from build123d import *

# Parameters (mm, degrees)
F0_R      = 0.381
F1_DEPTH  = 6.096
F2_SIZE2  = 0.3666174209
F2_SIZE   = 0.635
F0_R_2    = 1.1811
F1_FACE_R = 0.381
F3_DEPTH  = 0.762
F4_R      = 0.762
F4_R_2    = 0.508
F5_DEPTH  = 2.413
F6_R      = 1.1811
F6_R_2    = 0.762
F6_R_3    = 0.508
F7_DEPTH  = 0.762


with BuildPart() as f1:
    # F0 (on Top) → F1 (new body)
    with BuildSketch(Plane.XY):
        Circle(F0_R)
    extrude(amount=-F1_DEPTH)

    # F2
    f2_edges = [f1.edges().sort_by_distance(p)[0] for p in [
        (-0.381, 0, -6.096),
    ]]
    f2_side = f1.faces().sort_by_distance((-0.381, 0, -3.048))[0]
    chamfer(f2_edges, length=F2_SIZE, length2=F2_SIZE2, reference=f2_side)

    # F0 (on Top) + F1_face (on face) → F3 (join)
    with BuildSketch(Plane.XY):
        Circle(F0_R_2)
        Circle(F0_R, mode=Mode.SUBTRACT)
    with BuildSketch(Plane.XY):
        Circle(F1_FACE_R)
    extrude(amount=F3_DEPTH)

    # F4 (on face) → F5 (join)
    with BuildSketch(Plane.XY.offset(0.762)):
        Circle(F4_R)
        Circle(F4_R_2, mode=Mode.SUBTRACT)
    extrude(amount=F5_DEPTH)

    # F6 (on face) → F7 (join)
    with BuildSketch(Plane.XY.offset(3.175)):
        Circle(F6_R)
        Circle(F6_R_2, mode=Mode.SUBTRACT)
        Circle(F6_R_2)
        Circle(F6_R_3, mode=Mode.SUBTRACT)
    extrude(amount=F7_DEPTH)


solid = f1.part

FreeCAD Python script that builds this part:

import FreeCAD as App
import Part
import Sketcher

V = App.Vector
Q = App.Units.Quantity


def edges_at(feature, points):
    """Names of the edges that pass closest to the given points."""
    edges = feature.Shape.Edges
    near = lambda p: min(range(len(edges)), key=lambda i: edges[i].distToShape(Part.Vertex(*p))[0])
    return sorted({f"Edge{near(p) + 1}" for p in points})

doc = App.newDocument("Part")
body = doc.addObject("PartDesign::Body", "Body")

# Sketch on XY plane
sketch1 = body.newObject("Sketcher::SketchObject", "Sketch")
sketch1.AttachmentSupport = (doc.getObject("XY_Plane"), [""])
sketch1.MapMode = "FlatFace"
sketch1.addGeometry(Part.Circle(V(0, 0, 0), V(0, 0, 1), 0.381), False)
sketch1.addConstraint([
    Sketcher.Constraint("Coincident", 0, 3, -1, 1),
    Sketcher.Constraint("Diameter", 0, Q("0.03 in")),
])
pad1 = body.newObject("PartDesign::Pad", "Pad")
pad1.Profile = sketch1
pad1.Length = Q("0.24 in")
pad1.Reversed = True
doc.recompute()

chamfer = body.newObject("PartDesign::Chamfer", "Chamfer")
chamfer.Base = (pad1, edges_at(pad1, [(-0.381, 0, -6.096)]))
chamfer.ChamferType = "Two distances"
chamfer.Size = Q("0.025 in")
chamfer.Size2 = 0.366617

# Sketch on XY plane
sketch2 = body.newObject("Sketcher::SketchObject", "Sketch001")
sketch2.AttachmentSupport = (doc.getObject("XY_Plane"), [""])
sketch2.MapMode = "FlatFace"
sketch2.addGeometry(Part.Circle(V(0, 0, 0), V(0, 0, 1), 1.1811), False)
sketch2.addConstraint([
    Sketcher.Constraint("Coincident", 0, 3, -1, 1),
    Sketcher.Constraint("Diameter", 0, Q("0.093 in")),
])
pad2 = body.newObject("PartDesign::Pad", "Pad001")
pad2.Profile = sketch2
pad2.Length = Q("0.03 in")

# Sketch on XY plane
sketch3 = body.newObject("Sketcher::SketchObject", "Sketch002")
sketch3.AttachmentSupport = (doc.getObject("XY_Plane"), [""])
sketch3.MapMode = "FlatFace"
sketch3.AttachmentOffset = App.Placement(V(0, 0, 0.03 * 25.4), App.Rotation())
sketch3.addGeometry([
    Part.Circle(V(0, 0, 0), V(0, 0, 1), 0.762),
    Part.Circle(V(0, 0, 0), V(0, 0, 1), 0.508),
], False)
sketch3.addConstraint([
    Sketcher.Constraint("Coincident", 0, 3, -1, 1),
    Sketcher.Constraint("Coincident", 1, 3, -1, 1),
    Sketcher.Constraint("Diameter", 0, Q("0.06 in")),
    Sketcher.Constraint("Diameter", 1, Q("0.04 in")),
])
pad3 = body.newObject("PartDesign::Pad", "Pad002")
pad3.Profile = sketch3
pad3.Length = Q("0.095 in")

# Sketch on XY plane
sketch4 = body.newObject("Sketcher::SketchObject", "Sketch003")
sketch4.AttachmentSupport = (doc.getObject("XY_Plane"), [""])
sketch4.MapMode = "FlatFace"
sketch4.AttachmentOffset = App.Placement(V(0, 0, 0.125 * 25.4), App.Rotation())
sketch4.addGeometry([
    Part.Circle(V(0, 0, 0), V(0, 0, 1), 1.1811),
    Part.Circle(V(0, 0, 0), V(0, 0, 1), 0.508),
], False)
sketch4.addConstraint([
    Sketcher.Constraint("Coincident", 0, 3, -1, 1),
    Sketcher.Constraint("Coincident", 1, 3, -1, 1),
    Sketcher.Constraint("Diameter", 1, Q("0.04 in")),
    Sketcher.Constraint("Diameter", 0, Q("0.093 in")),
])
pad4 = body.newObject("PartDesign::Pad", "Pad003")
pad4.Profile = sketch4
pad4.Length = Q("0.03 in")

doc.recompute()
